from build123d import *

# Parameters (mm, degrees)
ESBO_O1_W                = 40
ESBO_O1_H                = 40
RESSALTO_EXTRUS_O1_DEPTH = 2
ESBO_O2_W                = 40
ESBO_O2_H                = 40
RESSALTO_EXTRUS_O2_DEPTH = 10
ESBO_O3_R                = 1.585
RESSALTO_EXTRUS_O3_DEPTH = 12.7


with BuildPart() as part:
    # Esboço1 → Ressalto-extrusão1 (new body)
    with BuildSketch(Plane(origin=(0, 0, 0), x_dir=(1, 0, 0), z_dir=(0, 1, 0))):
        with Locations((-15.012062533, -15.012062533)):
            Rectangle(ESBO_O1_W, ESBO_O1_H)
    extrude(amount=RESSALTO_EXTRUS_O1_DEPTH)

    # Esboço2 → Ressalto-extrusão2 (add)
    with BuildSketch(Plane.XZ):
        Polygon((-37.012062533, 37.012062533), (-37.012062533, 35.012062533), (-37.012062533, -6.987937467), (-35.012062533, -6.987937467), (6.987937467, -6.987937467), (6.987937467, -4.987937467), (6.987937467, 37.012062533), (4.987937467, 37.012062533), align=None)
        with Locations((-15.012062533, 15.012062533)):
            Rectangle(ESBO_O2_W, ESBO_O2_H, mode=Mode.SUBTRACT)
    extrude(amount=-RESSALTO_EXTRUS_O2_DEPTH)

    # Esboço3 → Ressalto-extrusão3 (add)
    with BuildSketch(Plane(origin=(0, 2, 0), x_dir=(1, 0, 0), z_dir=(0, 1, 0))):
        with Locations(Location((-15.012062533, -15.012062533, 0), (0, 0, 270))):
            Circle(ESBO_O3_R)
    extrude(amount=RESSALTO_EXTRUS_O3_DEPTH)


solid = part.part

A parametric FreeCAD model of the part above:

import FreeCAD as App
import Part
import Sketcher

V = App.Vector

doc = App.newDocument("Part")
body = doc.addObject("PartDesign::Body", "Body")

# Sketch on XZ plane
sketch1 = body.newObject("Sketcher::SketchObject", "Sketch")
sketch1.AttachmentSupport = (doc.getObject("XZ_Plane"), [""])
sketch1.MapMode = "FlatFace"
sketch1.addGeometry([
    Part.LineSegment(V(-35.012063, -4.987937, 0), V(-35.012063, 35.012063, 0)),
    Part.LineSegment(V(-35.012063, 35.012063, 0), V(4.987937, 35.012063, 0)),
    Part.LineSegment(V(4.987937, 35.012063, 0), V(4.987937, -4.987937, 0)),
    Part.LineSegment(V(4.987937, -4.987937, 0), V(-35.012063, -4.987937, 0)),
], False)
sketch1.addConstraint([
    Sketcher.Constraint("Coincident", 0, 2, 1, 1),
    Sketcher.Constraint("Coincident", 1, 2, 2, 1),
    Sketcher.Constraint("Coincident", 2, 2, 3, 1),
    Sketcher.Constraint("Coincident", 3, 2, 0, 1),
    Sketcher.Constraint("Vertical", 0),
    Sketcher.Constraint("Horizontal", 1),
    Sketcher.Constraint("Vertical", 2),
    Sketcher.Constraint("Horizontal", 3),
    Sketcher.Constraint("Equal", 3, 0),
    Sketcher.Constraint("DistanceX", 1, 1, 1, 2, 40.0),
    Sketcher.Constraint("DistanceX", 0, 2, -1, 1, 35.012063),
    Sketcher.Constraint("DistanceY", -1, 1, 0, 2, 35.012063),
])
pad1 = body.newObject("PartDesign::Pad", "Pad")
pad1.Profile = sketch1
pad1.Length = 2
pad1.Reversed = True

# Sketch on XZ plane
sketch2 = body.newObject("Sketcher::SketchObject", "Sketch001")
sketch2.AttachmentSupport = (doc.getObject("XZ_Plane"), [""])
sketch2.MapMode = "FlatFace"
sketch2.addGeometry([
    Part.LineSegment(V(-37.012063, 37.012063, 0), V(-37.012063, -6.987937, 0)),  # 0
    Part.LineSegment(V(-37.012063, -6.987937, 0), V(6.987937, -6.987937, 0)),  # 1
    Part.LineSegment(V(6.987937, -6.987937, 0), V(6.987937, 37.012063, 0)),  # 2
    Part.LineSegment(V(6.987937, 37.012063, 0), V(-37.012063, 37.012063, 0)),  # 3
    Part.LineSegment(V(4.987937, -4.987937, 0), V(-35.012063, -4.987937, 0)),  # 4
    Part.LineSegment(V(-35.012063, -4.987937, 0), V(-35.012063, 35.012063, 0)),  # 5
    Part.LineSegment(V(-35.012063, 35.012063, 0), V(4.987937, 35.012063, 0)),  # 6
    Part.LineSegment(V(4.987937, 35.012063, 0), V(4.987937, -4.987937, 0)),  # 7
], False)
sketch2.addConstraint([
    Sketcher.Constraint("Coincident", 0, 2, 1, 1),
    Sketcher.Constraint("Coincident", 1, 2, 2, 1),
    Sketcher.Constraint("Coincident", 2, 2, 3, 1),
    Sketcher.Constraint("Coincident", 3, 2, 0, 1),
    Sketcher.Constraint("Coincident", 4, 2, 5, 1),
    Sketcher.Constraint("Coincident", 5, 2, 6, 1),
    Sketcher.Constraint("Coincident", 6, 2, 7, 1),
    Sketcher.Constraint("Coincident", 7, 2, 4, 1),
    Sketcher.Constraint("Vertical", 0),
    Sketcher.Constraint("Horizontal", 1),
    Sketcher.Constraint("Vertical", 2),
    Sketcher.Constraint("Horizontal", 3),
    Sketcher.Constraint("Horizontal", 4),
    Sketcher.Constraint("Vertical", 5),
    Sketcher.Constraint("Horizontal", 6),
    Sketcher.Constraint("Vertical", 7),
    Sketcher.Constraint("Equal", 3, 0),
    Sketcher.Constraint("Equal", 6, 5),
    Sketcher.Constraint("DistanceX", 1, 1, 1, 2, 44.0),
    Sketcher.Constraint("DistanceX", 4, 2, 4, 1, 40.0),
    Sketcher.Constraint("DistanceX", 0, 2, 4, 2, 2.0),
    Sketcher.Constraint("DistanceY", 0, 2, 4, 2, 2.0),
    Sketcher.Constraint("DistanceX", 0, 2, -1, 1, 37.012063),
    Sketcher.Constraint("DistanceY", 0, 2, -1, 1, 6.987937),
])
pad2 = body.newObject("PartDesign::Pad", "Pad001")
pad2.Profile = sketch2
pad2.Length = 10
pad2.Reversed = True

# Sketch on XZ plane
sketch3 = body.newObject("Sketcher::SketchObject", "Sketch002")
sketch3.AttachmentSupport = (doc.getObject("XZ_Plane"), [""])
sketch3.MapMode = "FlatFace"
sketch3.AttachmentOffset = App.Placement(V(0, 0, -2), App.Rotation())
sketch3.addGeometry(Part.Circle(V(-15.012063, 15.012063, 0), V(0, 0, 1), 1.585), False)
sketch3.addConstraint([
    Sketcher.Constraint("Diameter", 0, 3.17),
    Sketcher.Constraint("DistanceX", 0, 3, -1, 1, 15.012063),
    Sketcher.Constraint("DistanceY", -1, 1, 0, 3, 15.012063),
])
pad3 = body.newObject("PartDesign::Pad", "Pad002")
pad3.Profile = sketch3
pad3.Length = 12.7
pad3.Reversed = True

doc.recompute()
